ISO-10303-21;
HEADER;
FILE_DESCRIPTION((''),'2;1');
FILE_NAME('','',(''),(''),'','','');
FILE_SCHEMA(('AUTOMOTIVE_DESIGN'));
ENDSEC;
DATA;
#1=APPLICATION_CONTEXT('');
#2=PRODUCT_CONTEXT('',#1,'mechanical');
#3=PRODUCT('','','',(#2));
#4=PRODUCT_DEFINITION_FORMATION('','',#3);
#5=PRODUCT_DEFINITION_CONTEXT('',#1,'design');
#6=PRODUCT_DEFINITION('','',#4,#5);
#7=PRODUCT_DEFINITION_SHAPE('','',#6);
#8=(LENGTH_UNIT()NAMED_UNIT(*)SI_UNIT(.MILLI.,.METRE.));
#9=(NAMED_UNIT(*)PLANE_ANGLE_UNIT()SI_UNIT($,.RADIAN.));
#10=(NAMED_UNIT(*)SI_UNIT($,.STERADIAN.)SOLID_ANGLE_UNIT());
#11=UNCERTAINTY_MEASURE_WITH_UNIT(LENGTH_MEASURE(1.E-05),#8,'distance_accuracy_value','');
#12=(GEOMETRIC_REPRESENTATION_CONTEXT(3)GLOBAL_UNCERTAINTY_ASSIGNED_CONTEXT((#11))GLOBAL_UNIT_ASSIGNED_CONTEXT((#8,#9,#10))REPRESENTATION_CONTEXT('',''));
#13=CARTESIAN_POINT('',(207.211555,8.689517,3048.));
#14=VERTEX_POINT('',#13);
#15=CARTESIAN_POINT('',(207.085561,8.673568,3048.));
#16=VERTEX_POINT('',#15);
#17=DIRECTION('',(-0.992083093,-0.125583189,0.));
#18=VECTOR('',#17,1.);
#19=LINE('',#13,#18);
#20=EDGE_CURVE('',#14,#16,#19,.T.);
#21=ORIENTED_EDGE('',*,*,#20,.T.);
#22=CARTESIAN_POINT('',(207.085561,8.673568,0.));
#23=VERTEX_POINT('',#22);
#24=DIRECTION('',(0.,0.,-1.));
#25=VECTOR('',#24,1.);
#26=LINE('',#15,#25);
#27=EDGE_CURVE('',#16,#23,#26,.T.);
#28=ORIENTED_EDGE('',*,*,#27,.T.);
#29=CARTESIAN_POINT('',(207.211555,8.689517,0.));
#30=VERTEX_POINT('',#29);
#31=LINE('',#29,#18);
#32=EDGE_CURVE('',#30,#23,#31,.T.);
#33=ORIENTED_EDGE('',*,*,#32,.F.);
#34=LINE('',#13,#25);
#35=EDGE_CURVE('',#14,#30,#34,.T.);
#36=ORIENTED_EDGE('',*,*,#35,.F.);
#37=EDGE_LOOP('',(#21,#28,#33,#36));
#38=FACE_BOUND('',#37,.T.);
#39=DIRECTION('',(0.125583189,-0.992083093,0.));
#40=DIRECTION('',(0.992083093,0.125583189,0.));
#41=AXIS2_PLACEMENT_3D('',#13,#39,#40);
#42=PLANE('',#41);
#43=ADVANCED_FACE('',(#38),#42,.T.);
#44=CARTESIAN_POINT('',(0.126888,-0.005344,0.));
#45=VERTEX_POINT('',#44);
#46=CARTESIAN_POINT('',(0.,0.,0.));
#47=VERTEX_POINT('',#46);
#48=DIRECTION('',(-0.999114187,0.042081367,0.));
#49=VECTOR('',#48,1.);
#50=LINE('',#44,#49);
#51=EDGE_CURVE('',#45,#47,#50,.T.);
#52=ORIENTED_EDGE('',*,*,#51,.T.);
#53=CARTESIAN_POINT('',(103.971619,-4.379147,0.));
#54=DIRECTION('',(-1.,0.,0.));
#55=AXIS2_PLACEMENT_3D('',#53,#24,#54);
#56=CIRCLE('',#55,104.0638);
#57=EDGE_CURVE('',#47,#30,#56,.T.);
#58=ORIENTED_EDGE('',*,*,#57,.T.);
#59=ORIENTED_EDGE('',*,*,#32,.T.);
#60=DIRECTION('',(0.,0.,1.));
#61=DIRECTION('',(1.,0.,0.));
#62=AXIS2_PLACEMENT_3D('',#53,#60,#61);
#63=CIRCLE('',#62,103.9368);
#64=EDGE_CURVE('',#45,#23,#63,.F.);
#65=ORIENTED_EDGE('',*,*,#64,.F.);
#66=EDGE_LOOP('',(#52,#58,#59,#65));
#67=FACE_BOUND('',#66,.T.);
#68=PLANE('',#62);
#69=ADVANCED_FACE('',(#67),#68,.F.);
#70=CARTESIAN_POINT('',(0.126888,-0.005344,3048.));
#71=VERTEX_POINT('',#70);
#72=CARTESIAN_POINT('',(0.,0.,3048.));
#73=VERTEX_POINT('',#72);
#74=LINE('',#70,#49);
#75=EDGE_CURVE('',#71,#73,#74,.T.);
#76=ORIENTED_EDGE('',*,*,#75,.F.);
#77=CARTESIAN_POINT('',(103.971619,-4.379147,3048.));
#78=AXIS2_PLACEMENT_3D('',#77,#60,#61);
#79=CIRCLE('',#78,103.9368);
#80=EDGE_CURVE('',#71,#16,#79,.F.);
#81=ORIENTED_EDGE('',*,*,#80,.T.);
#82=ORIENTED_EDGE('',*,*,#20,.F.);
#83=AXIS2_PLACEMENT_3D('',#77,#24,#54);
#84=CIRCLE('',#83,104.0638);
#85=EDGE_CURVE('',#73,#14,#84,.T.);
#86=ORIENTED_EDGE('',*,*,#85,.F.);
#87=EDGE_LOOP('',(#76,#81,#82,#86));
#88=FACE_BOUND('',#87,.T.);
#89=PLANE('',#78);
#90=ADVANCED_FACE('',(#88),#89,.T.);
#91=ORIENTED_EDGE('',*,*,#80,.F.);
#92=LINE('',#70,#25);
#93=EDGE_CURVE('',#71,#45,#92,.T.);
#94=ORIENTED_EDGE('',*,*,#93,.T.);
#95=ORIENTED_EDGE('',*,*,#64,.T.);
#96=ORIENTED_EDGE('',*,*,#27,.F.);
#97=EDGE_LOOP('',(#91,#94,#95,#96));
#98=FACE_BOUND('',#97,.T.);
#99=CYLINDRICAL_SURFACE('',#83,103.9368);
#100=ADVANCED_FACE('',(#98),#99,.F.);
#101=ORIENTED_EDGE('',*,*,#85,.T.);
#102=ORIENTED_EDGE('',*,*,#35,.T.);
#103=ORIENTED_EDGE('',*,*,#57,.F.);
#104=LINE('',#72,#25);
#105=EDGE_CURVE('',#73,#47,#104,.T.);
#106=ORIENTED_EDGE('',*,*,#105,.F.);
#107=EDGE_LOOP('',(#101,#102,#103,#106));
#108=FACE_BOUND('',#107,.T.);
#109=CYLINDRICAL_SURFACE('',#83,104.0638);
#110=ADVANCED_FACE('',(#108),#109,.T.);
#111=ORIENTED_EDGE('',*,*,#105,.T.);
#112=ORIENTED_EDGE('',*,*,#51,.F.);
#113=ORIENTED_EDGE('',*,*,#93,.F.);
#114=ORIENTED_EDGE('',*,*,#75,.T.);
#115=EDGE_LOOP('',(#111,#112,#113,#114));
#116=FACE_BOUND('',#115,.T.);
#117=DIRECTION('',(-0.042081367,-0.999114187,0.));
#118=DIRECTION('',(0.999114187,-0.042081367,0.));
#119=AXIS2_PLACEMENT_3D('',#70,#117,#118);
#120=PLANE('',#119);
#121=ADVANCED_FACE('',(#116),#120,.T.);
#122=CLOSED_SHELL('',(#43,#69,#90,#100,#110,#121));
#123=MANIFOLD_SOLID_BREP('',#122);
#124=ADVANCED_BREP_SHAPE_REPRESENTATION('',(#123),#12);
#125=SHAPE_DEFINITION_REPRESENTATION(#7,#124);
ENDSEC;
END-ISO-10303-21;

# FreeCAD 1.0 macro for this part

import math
import FreeCAD as App
import Part
import Sketcher
Q = App.Units.Quantity

doc = App.newDocument("Part")
body = doc.addObject("PartDesign::Body", "Body")

sketch1 = body.newObject("Sketcher::SketchObject", "Sketch")
sketch1.AttachmentSupport = (doc.getObject("XY_Plane"), [""])
sketch1.MapMode = "FlatFace"
sketch1.addGeometry(Part.ArcOfCircle(Part.Circle(App.Vector(103.97, -4.38, 0), App.Vector(0, 0, 1), 104.06), math.radians(7), math.radians(178)), False)
sketch1.addGeometry(Part.LineSegment(App.Vector(0, 0, 0), App.Vector(0.13, -0.01, 0)), False)
sketch1.addGeometry(Part.ArcOfCircle(Part.Circle(App.Vector(103.97, -4.38, 0), App.Vector(0, 0, 1), 103.94), math.radians(7), math.radians(178)), False)
sketch1.addGeometry(Part.LineSegment(App.Vector(207.09, 8.67, 0), App.Vector(207.21, 8.69, 0)), False)
sketch1.addConstraint(Sketcher.Constraint("Coincident", 0, 2, 1, 1))
sketch1.addConstraint(Sketcher.Constraint("Coincident", 1, 2, 2, 2))
sketch1.addConstraint(Sketcher.Constraint("Coincident", 2, 1, 3, 1))
sketch1.addConstraint(Sketcher.Constraint("Coincident", 3, 2, 0, 1))
sketch1.addConstraint(Sketcher.Constraint("Coincident", 0, 2, -1, 1))
sketch1.addConstraint(Sketcher.Constraint("Coincident", 2, 3, 0, 3))
sketch1.addConstraint(Sketcher.Constraint("Radius", 0, Q("4.097 in")))
sketch1.addConstraint(Sketcher.Constraint("Radius", 2, Q("4.092 in")))
sketch1.addConstraint(Sketcher.Constraint("DistanceX", -1, 1, 0, 3, 103.971619))
sketch1.addConstraint(Sketcher.Constraint("DistanceX", -1, 1, 2, 1, 207.085561))
sketch1.addConstraint(Sketcher.Constraint("DistanceX", 1, 2, 0, 3, 103.844731))
sketch1.addConstraint(Sketcher.Constraint("DistanceY", 2, 1, 3, 2, 0.015949))
pad1 = body.newObject("PartDesign::Pad", "Pad")
pad1.Profile = sketch1
pad1.Length = Q("120 in")

doc.recompute()
